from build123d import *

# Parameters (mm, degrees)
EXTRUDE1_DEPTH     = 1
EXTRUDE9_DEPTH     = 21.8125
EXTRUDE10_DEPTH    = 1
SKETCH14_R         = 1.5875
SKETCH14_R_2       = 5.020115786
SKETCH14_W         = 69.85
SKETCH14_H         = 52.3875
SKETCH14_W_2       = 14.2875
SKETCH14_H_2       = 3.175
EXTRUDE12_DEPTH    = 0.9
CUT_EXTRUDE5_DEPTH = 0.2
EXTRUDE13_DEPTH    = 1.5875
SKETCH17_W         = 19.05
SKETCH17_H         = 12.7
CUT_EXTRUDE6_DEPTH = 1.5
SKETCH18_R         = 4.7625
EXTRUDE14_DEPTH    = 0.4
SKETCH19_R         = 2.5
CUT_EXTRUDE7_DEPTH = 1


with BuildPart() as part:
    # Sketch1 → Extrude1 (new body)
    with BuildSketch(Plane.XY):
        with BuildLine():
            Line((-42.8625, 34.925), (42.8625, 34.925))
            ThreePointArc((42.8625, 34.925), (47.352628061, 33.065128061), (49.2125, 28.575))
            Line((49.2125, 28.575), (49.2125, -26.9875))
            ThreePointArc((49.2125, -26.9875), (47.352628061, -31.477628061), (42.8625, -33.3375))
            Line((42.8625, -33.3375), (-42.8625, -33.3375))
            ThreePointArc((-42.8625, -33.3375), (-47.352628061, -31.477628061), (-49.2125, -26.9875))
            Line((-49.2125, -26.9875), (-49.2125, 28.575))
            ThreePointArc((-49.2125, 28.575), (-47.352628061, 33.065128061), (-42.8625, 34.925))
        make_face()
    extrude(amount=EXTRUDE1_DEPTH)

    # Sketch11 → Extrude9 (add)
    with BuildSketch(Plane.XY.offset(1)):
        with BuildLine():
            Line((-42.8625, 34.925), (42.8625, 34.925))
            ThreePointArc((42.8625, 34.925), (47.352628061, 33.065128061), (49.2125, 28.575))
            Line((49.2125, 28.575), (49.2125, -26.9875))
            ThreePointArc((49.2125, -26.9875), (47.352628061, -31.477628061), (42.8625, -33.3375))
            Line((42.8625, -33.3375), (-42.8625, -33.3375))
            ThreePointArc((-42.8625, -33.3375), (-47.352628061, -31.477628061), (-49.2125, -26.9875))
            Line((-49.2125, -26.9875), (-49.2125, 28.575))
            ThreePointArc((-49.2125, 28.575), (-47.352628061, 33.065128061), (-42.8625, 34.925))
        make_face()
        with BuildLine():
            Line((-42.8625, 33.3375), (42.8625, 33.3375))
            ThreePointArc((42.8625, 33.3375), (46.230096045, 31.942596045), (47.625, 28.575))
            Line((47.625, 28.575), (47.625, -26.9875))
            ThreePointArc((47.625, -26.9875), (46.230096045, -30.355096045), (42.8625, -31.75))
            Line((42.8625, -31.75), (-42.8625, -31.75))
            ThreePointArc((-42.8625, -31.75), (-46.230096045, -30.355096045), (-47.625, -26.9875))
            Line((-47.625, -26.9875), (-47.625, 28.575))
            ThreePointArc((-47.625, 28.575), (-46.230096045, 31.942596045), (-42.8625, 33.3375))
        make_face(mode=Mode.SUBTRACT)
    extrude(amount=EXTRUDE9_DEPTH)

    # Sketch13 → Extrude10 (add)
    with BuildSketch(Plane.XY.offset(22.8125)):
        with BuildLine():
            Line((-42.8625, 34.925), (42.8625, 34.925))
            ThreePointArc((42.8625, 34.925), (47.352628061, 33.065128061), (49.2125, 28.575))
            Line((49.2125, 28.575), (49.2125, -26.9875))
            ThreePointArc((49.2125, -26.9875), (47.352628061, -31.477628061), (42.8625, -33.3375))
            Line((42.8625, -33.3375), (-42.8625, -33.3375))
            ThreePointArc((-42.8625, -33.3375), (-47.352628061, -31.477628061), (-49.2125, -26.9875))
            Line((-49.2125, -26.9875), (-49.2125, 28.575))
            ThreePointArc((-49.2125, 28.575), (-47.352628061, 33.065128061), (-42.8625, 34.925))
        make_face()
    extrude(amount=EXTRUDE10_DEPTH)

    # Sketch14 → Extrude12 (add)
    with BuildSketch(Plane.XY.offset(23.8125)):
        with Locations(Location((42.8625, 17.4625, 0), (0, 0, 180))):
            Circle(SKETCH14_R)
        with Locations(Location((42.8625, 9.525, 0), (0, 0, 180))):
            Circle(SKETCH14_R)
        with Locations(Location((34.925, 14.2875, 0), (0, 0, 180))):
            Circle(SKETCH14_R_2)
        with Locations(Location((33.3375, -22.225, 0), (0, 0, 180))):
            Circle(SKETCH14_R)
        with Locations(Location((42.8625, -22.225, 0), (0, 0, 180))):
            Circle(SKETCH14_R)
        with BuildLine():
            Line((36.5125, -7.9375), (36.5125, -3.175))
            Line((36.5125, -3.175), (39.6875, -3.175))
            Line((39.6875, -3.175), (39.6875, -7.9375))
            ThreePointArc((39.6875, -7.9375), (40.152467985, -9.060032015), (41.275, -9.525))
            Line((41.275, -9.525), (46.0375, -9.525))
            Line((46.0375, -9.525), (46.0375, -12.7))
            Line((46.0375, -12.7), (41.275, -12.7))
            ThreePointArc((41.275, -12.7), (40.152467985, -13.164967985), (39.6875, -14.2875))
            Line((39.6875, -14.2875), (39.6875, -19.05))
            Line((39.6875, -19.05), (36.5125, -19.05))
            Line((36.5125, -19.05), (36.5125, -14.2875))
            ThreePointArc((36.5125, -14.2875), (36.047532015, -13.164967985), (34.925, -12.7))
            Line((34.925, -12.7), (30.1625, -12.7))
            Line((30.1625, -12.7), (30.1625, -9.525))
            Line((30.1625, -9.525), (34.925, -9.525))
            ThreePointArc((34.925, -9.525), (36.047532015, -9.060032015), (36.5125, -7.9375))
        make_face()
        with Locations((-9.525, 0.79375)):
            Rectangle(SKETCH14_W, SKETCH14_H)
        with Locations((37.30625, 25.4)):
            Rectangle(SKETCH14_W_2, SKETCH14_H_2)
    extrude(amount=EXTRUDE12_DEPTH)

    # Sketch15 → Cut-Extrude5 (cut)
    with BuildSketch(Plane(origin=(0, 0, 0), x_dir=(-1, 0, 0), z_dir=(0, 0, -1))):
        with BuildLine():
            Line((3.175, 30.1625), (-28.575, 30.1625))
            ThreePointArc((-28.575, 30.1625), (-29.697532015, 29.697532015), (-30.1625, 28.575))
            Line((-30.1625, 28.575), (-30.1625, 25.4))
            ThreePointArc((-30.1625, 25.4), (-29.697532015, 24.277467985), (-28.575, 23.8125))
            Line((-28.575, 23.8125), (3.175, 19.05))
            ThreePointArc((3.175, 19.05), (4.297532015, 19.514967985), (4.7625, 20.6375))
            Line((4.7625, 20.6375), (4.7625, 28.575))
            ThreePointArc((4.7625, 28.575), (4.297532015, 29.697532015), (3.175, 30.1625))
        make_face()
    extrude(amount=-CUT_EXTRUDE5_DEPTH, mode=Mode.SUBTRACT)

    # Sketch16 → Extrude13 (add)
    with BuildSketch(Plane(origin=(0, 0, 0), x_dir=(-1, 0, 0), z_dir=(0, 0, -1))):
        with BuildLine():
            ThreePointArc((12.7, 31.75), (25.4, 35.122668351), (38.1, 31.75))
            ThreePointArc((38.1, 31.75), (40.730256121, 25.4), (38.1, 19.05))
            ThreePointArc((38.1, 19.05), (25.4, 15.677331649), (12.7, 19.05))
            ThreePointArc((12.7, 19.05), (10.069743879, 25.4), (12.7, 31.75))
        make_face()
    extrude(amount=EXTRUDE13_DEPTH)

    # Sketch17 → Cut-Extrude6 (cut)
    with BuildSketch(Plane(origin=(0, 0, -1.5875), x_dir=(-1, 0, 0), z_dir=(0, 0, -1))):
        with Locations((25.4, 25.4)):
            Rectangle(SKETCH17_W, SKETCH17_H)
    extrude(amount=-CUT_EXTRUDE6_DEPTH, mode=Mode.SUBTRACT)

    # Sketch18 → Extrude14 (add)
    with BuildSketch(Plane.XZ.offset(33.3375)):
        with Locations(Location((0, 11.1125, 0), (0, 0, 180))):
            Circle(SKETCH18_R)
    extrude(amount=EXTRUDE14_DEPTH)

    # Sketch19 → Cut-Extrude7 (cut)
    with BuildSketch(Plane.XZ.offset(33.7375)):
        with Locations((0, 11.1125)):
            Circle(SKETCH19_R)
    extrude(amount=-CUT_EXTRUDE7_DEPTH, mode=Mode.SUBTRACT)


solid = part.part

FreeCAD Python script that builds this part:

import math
import FreeCAD as App
import Part
import Sketcher
from FreeCAD import Vector
Q = App.Units.Quantity


def add_polygon(sketch, points):
    """Adds a closed chain of lines whose ends are joined by coincident constraints."""
    first, n = sketch.GeometryCount, len(points)
    for a, b in zip(points, points[1:] + points[:1]):
        sketch.addGeometry(Part.LineSegment(App.Vector(*a, 0), App.Vector(*b, 0)), False)
    for i in range(n):
        sketch.addConstraint(Sketcher.Constraint("Coincident", first + i, 2, first + (i + 1) % n, 1))

doc = App.newDocument("Part")
params = doc.addObject("Spreadsheet::Sheet", "Params")
for row, (alias, value) in enumerate([
    ("sketch1_radius", "0.25 in"),
    ("sketch1_width", "3.375 in"),
    ("sketch1_height", "2.1875 in"),
    ("pad1_length", "1 mm"),
    ("sketch2_radius", "0.25 in"),
    ("sketch2_radius2", "0.1875 in"),
    ("sketch2_width", "3.375 in"),
    ("sketch2_height", "2.1875 in"),
    ("pad2_length", "21.8125 mm"),
    ("sketch3_radius", "0.25 in"),
    ("sketch3_width", "3.375 in"),
    ("sketch3_height", "2.1875 in"),
    ("pad3_length", "1 mm"),
    ("sketch4_diameter", "0.125 in"),
    ("sketch4_width", "2.75 in"),
    ("sketch4_width2", "0.1875 in"),
    ("sketch4_width3", "0.125 in"),
    ("sketch4_width4", "0.5625 in"),
    ("pad4_length", "0.9 mm"),
    ("sketch5_radius", "0.0625 in"),
    ("sketch5_width", "1.25 in"),
    ("sketch5_height", "0.125 in"),
    ("sketch5_height2", "0.3125 in"),
    ("pocket1_length", "0.2 mm"),
    ("pad5_length", "0.0625 in"),
    ("sketch7_height", "0.5 in"),
    ("sketch7_width", "0.75 in"),
    ("pocket2_length", "1.5 mm"),
    ("sketch8_diameter", "0.375 in"),
    ("pad6_length", "0.4 mm"),
    ("pocket3_length", "1 mm"),
], start=1):
    params.set(f"A{row}", alias)
    params.set(f"B{row}", "=" + value)
    params.setAlias(f"B{row}", alias)

body = doc.addObject("PartDesign::Body", "Body")

# Sketch on XY plane
sketch1 = doc.addObject("Sketcher::SketchObject", "Sketch")
body.addObject(sketch1)
sketch1.AttachmentSupport = (doc.XY_Plane, [""])
sketch1.MapMode = "FlatFace"
sketch1.addGeometry([
    Part.LineSegment(Vector(43, 35, 0), Vector(-43, 35, 0)),  # 0
    Part.ArcOfCircle(Part.Circle(Vector(-43, 29, 0), Vector(0, 0, 1), 6), math.radians(90), math.radians(180)),  # 1
    Part.LineSegment(Vector(-49, 29, 0), Vector(-49, -27, 0)),  # 2
    Part.ArcOfCircle(Part.Circle(Vector(-43, -27, 0), Vector(0, 0, 1), 6), math.radians(180), math.radians(270)),  # 3
    Part.LineSegment(Vector(-43, -33, 0), Vector(43, -33, 0)),  # 4
    Part.ArcOfCircle(Part.Circle(Vector(43, -27, 0), Vector(0, 0, 1), 6), math.radians(-90), math.radians(0)),  # 5
    Part.LineSegment(Vector(49, -27, 0), Vector(49, 29, 0)),  # 6
    Part.ArcOfCircle(Part.Circle(Vector(43, 29, 0), Vector(0, 0, 1), 6), math.radians(0), math.radians(90)),  # 7
], False)
sketch1.addConstraint([
    Sketcher.Constraint("Tangent", 0, 2, 1, 1),
    Sketcher.Constraint("Tangent", 1, 2, 2, 1),
    Sketcher.Constraint("Tangent", 2, 2, 3, 1),
    Sketcher.Constraint("Tangent", 3, 2, 4, 1),
    Sketcher.Constraint("Tangent", 4, 2, 5, 1),
    Sketcher.Constraint("Tangent", 5, 2, 6, 1),
    Sketcher.Constraint("Tangent", 6, 2, 7, 1),
    Sketcher.Constraint("Tangent", 7, 2, 0, 1),
    Sketcher.Constraint("Horizontal", 0),
    Sketcher.Constraint("Vertical", 2),
    Sketcher.Constraint("Horizontal", 4),
    Sketcher.Constraint("Vertical", 6),
    Sketcher.Constraint("Equal", 1, 3),
    Sketcher.Constraint("Equal", 3, 5),
    Sketcher.Constraint("Equal", 5, 7),
    Sketcher.Constraint("Radius", 1, Q("0.25 in")),
    Sketcher.Constraint("DistanceX", 0, 2, 0, 1, Q("3.375 in")),
    Sketcher.Constraint("DistanceY", 2, 2, 2, 1, Q("2.1875 in")),
    Sketcher.Constraint("DistanceX", 1, 3, -1, 1, Q("1.6875 in")),
    Sketcher.Constraint("DistanceY", -1, 1, 1, 3, Q("1.125 in")),
])
sketch1.setExpression("Constraints[15]", "Params.sketch1_radius")
sketch1.setExpression("Constraints[16]", "Params.sketch1_width")
sketch1.setExpression("Constraints[17]", "Params.sketch1_height")
pad1 = doc.addObject("PartDesign::Pad", "Pad")
body.addObject(pad1)
pad1.Profile = sketch1
pad1.setExpression("Length", "Params.pad1_length")

# Sketch on XY plane
sketch2 = doc.addObject("Sketcher::SketchObject", "Sketch001")
body.addObject(sketch2)
sketch2.AttachmentSupport = (doc.XY_Plane, [""])
sketch2.MapMode = "FlatFace"
sketch2.AttachmentOffset = App.Placement(Vector(0, 0, 1), App.Rotation())
sketch2.addGeometry([
    Part.LineSegment(Vector(42.9, 34.9, 0), Vector(-42.9, 34.9, 0)),  # 0
    Part.ArcOfCircle(Part.Circle(Vector(-42.9, 28.6, 0), Vector(0, 0, 1), 6.3), math.radians(90), math.radians(180)),  # 1
    Part.LineSegment(Vector(-49.2, 28.6, 0), Vector(-49.2, -27, 0)),  # 2
    Part.ArcOfCircle(Part.Circle(Vector(-42.9, -27, 0), Vector(0, 0, 1), 6.3), math.radians(180), math.radians(270)),  # 3
    Part.LineSegment(Vector(-42.9, -33.3, 0), Vector(42.9, -33.3, 0)),  # 4
    Part.ArcOfCircle(Part.Circle(Vector(42.9, -27, 0), Vector(0, 0, 1), 6.3), math.radians(-90), math.radians(0)),  # 5
    Part.LineSegment(Vector(49.2, -27, 0), Vector(49.2, 28.6, 0)),  # 6
    Part.ArcOfCircle(Part.Circle(Vector(42.9, 28.6, 0), Vector(0, 0, 1), 6.3), math.radians(0), math.radians(90)),  # 7
    Part.LineSegment(Vector(-42.9, 33.3, 0), Vector(42.9, 33.3, 0)),  # 8
    Part.ArcOfCircle(Part.Circle(Vector(42.9, 28.6, 0), Vector(0, 0, 1), 4.8), math.radians(0), math.radians(90)),  # 9
    Part.LineSegment(Vector(47.6, 28.6, 0), Vector(47.6, -27, 0)),  # 10
    Part.ArcOfCircle(Part.Circle(Vector(42.9, -27, 0), Vector(0, 0, 1), 4.8), math.radians(-90), math.radians(0)),  # 11
    Part.LineSegment(Vector(42.9, -31.8, 0), Vector(-42.9, -31.8, 0)),  # 12
    Part.ArcOfCircle(Part.Circle(Vector(-42.9, -27, 0), Vector(0, 0, 1), 4.8), math.radians(-180), math.radians(-90)),  # 13
    Part.LineSegment(Vector(-47.6, -27, 0), Vector(-47.6, 28.6, 0)),  # 14
    Part.ArcOfCircle(Part.Circle(Vector(-42.9, 28.6, 0), Vector(0, 0, 1), 4.8), math.radians(90), math.radians(180)),  # 15
], False)
sketch2.addConstraint([
    Sketcher.Constraint("Tangent", 0, 2, 1, 1),
    Sketcher.Constraint("Tangent", 1, 2, 2, 1),
    Sketcher.Constraint("Tangent", 2, 2, 3, 1),
    Sketcher.Constraint("Tangent", 3, 2, 4, 1),
    Sketcher.Constraint("Tangent", 4, 2, 5, 1),
    Sketcher.Constraint("Tangent", 5, 2, 6, 1),
    Sketcher.Constraint("Tangent", 6, 2, 7, 1),
    Sketcher.Constraint("Tangent", 7, 2, 0, 1),
    Sketcher.Constraint("Tangent", 8, 2, 9, 2),
    Sketcher.Constraint("Tangent", 9, 1, 10, 1),
    Sketcher.Constraint("Tangent", 10, 2, 11, 2),
    Sketcher.Constraint("Tangent", 11, 1, 12, 1),
    Sketcher.Constraint("Tangent", 12, 2, 13, 2),
    Sketcher.Constraint("Tangent", 13, 1, 14, 1),
    Sketcher.Constraint("Tangent", 14, 2, 15, 2),
    Sketcher.Constraint("Tangent", 15, 1, 8, 1),
    Sketcher.Constraint("Horizontal", 0),
    Sketcher.Constraint("Vertical", 2),
    Sketcher.Constraint("Horizontal", 4),
    Sketcher.Constraint("Vertical", 6),
    Sketcher.Constraint("Horizontal", 8),
    Sketcher.Constraint("Vertical", 10),
    Sketcher.Constraint("Horizontal", 12),
    Sketcher.Constraint("Vertical", 14),
    Sketcher.Constraint("Coincident", 9, 3, 7, 3),
    Sketcher.Constraint("Coincident", 11, 3, 5, 3),
    Sketcher.Constraint("Coincident", 13, 3, 3, 3),
    Sketcher.Constraint("Equal", 1, 3),
    Sketcher.Constraint("Equal", 3, 5),
    Sketcher.Constraint("Equal", 5, 7),
    Sketcher.Constraint("Equal", 13, 15),
    Sketcher.Constraint("Symmetric", 3, 2, 8, 2, -1, 1),
    Sketcher.Constraint("Radius", 1, Q("0.25 in")),
    Sketcher.Constraint("Radius", 9, Q("0.1875 in")),
    Sketcher.Constraint("DistanceX", 0, 2, 0, 1, Q("3.375 in")),
    Sketcher.Constraint("DistanceY", 2, 2, 2, 1, Q("2.1875 in")),
])
sketch2.setExpression("Constraints[32]", "Params.sketch2_radius")
sketch2.setExpression("Constraints[33]", "Params.sketch2_radius2")
sketch2.setExpression("Constraints[34]", "Params.sketch2_width")
sketch2.setExpression("Constraints[35]", "Params.sketch2_height")
pad2 = doc.addObject("PartDesign::Pad", "Pad001")
body.addObject(pad2)
pad2.Profile = sketch2
pad2.setExpression("Length", "Params.pad2_length")

# Sketch on XY plane
sketch3 = doc.addObject("Sketcher::SketchObject", "Sketch002")
body.addObject(sketch3)
sketch3.AttachmentSupport = (doc.XY_Plane, [""])
sketch3.MapMode = "FlatFace"
sketch3.AttachmentOffset = App.Placement(Vector(0, 0, 22.8125), App.Rotation())
sketch3.addGeometry([
    Part.LineSegment(Vector(43, 35, 0), Vector(-43, 35, 0)),  # 0
    Part.ArcOfCircle(Part.Circle(Vector(-43, 29, 0), Vector(0, 0, 1), 6), math.radians(90), math.radians(180)),  # 1
    Part.LineSegment(Vector(-49, 29, 0), Vector(-49, -27, 0)),  # 2
    Part.ArcOfCircle(Part.Circle(Vector(-43, -27, 0), Vector(0, 0, 1), 6), math.radians(180), math.radians(270)),  # 3
    Part.LineSegment(Vector(-43, -33, 0), Vector(43, -33, 0)),  # 4
    Part.ArcOfCircle(Part.Circle(Vector(43, -27, 0), Vector(0, 0, 1), 6), math.radians(-90), math.radians(0)),  # 5
    Part.LineSegment(Vector(49, -27, 0), Vector(49, 29, 0)),  # 6
    Part.ArcOfCircle(Part.Circle(Vector(43, 29, 0), Vector(0, 0, 1), 6), math.radians(0), math.radians(90)),  # 7
], False)
sketch3.addConstraint([
    Sketcher.Constraint("Tangent", 0, 2, 1, 1),
    Sketcher.Constraint("Tangent", 1, 2, 2, 1),
    Sketcher.Constraint("Tangent", 2, 2, 3, 1),
    Sketcher.Constraint("Tangent", 3, 2, 4, 1),
    Sketcher.Constraint("Tangent", 4, 2, 5, 1),
    Sketcher.Constraint("Tangent", 5, 2, 6, 1),
    Sketcher.Constraint("Tangent", 6, 2, 7, 1),
    Sketcher.Constraint("Tangent", 7, 2, 0, 1),
    Sketcher.Constraint("Horizontal", 0),
    Sketcher.Constraint("Vertical", 2),
    Sketcher.Constraint("Horizontal", 4),
    Sketcher.Constraint("Vertical", 6),
    Sketcher.Constraint("Equal", 1, 3),
    Sketcher.Constraint("Equal", 3, 5),
    Sketcher.Constraint("Equal", 5, 7),
    Sketcher.Constraint("Radius", 1, Q("0.25 in")),
    Sketcher.Constraint("DistanceX", 0, 2, 0, 1, Q("3.375 in")),
    Sketcher.Constraint("DistanceY", 2, 2, 2, 1, Q("2.1875 in")),
    Sketcher.Constraint("DistanceX", 1, 3, -1, 1, Q("1.6875 in")),
    Sketcher.Constraint("DistanceY", -1, 1, 1, 3, Q("1.125 in")),
])
sketch3.setExpression("Constraints[15]", "Params.sketch3_radius")
sketch3.setExpression("Constraints[16]", "Params.sketch3_width")
sketch3.setExpression("Constraints[17]", "Params.sketch3_height")
pad3 = doc.addObject("PartDesign::Pad", "Pad002")
body.addObject(pad3)
pad3.Profile = sketch3
pad3.setExpression("Length", "Params.pad3_length")

# Sketch on XY plane
sketch4 = doc.addObject("Sketcher::SketchObject", "Sketch003")
body.addObject(sketch4)
sketch4.AttachmentSupport = (doc.XY_Plane, [""])
sketch4.MapMode = "FlatFace"
sketch4.AttachmentOffset = App.Placement(Vector(0, 0, 0.9375 * 25.4), App.Rotation())
sketch4.addGeometry(Part.Circle(Vector(42.9, 17.5, 0), Vector(0, 0, 1), 1.6), False)  # 0
sketch4.addGeometry(Part.Circle(Vector(42.9, 9.5, 0), Vector(0, 0, 1), 1.6), False)  # 1
sketch4.addGeometry(Part.Circle(Vector(34.9, 14.3, 0), Vector(0, 0, 1), 5), False)  # 2
sketch4.addGeometry(Part.Circle(Vector(33.3, -22.2, 0), Vector(0, 0, 1), 1.6), False)  # 3
sketch4.addGeometry(Part.Circle(Vector(42.9, -22.2, 0), Vector(0, 0, 1), 1.6), False)  # 4
sketch4.addGeometry(Part.LineSegment(Vector(36.5, -3.2, 0), Vector(36.5, -7.9, 0)), False)  # 5
sketch4.addGeometry(Part.ArcOfCircle(Part.Circle(Vector(34.9, -7.9, 0), Vector(0, 0, 1), 1.6), math.radians(-90), math.radians(0)), False)  # 6
sketch4.addGeometry(Part.LineSegment(Vector(34.9, -9.5, 0), Vector(30.2, -9.5, 0)), False)  # 7
sketch4.addGeometry(Part.LineSegment(Vector(30.2, -9.5, 0), Vector(30.2, -12.7, 0)), False)  # 8
sketch4.addGeometry(Part.LineSegment(Vector(30.2, -12.7, 0), Vector(34.9, -12.7, 0)), False)  # 9
sketch4.addGeometry(Part.ArcOfCircle(Part.Circle(Vector(34.9, -14.3, 0), Vector(0, 0, 1), 1.6), math.radians(0), math.radians(90)), False)  # 10
sketch4.addGeometry(Part.LineSegment(Vector(36.5, -14.3, 0), Vector(36.5, -19.1, 0)), False)  # 11
sketch4.addGeometry(Part.LineSegment(Vector(36.5, -19.1, 0), Vector(39.7, -19.1, 0)), False)  # 12
sketch4.addGeometry(Part.LineSegment(Vector(39.7, -19.1, 0), Vector(39.7, -14.3, 0)), False)  # 13
sketch4.addGeometry(Part.ArcOfCircle(Part.Circle(Vector(41.3, -14.3, 0), Vector(0, 0, 1), 1.6), math.radians(90), math.radians(180)), False)  # 14
sketch4.addGeometry(Part.LineSegment(Vector(41.3, -12.7, 0), Vector(46, -12.7, 0)), False)  # 15
sketch4.addGeometry(Part.LineSegment(Vector(46, -12.7, 0), Vector(46, -9.5, 0)), False)  # 16
sketch4.addGeometry(Part.LineSegment(Vector(46, -9.5, 0), Vector(41.3, -9.5, 0)), False)  # 17
sketch4.addGeometry(Part.ArcOfCircle(Part.Circle(Vector(41.3, -7.9, 0), Vector(0, 0, 1), 1.6), math.radians(180), math.radians(270)), False)  # 18
sketch4.addGeometry(Part.LineSegment(Vector(39.7, -7.9, 0), Vector(39.7, -3.2, 0)), False)  # 19
sketch4.addGeometry(Part.LineSegment(Vector(39.7, -3.2, 0), Vector(36.5, -3.2, 0)), False)  # 20
add_polygon(sketch4, [(-44.5, 27), (-44.5, -25.4), (25.4, -25.4), (25.4, 27)])  # lines 21-24
add_polygon(sketch4, [(30.2, 27), (30.2, 23.8), (44.5, 23.8), (44.5, 27)])  # lines 25-28
sketch4.addConstraint([
    Sketcher.Constraint("Tangent", 5, 2, 6, 2),
    Sketcher.Constraint("Tangent", 6, 1, 7, 1),
    Sketcher.Constraint("Coincident", 7, 2, 8, 1),
    Sketcher.Constraint("Coincident", 8, 2, 9, 1),
    Sketcher.Constraint("Tangent", 9, 2, 10, 2),
    Sketcher.Constraint("Tangent", 10, 1, 11, 1),
    Sketcher.Constraint("Coincident", 11, 2, 12, 1),
    Sketcher.Constraint("Coincident", 12, 2, 13, 1),
    Sketcher.Constraint("Tangent", 13, 2, 14, 2),
    Sketcher.Constraint("Tangent", 14, 1, 15, 1),
    Sketcher.Constraint("Coincident", 15, 2, 16, 1),
    Sketcher.Constraint("Coincident", 16, 2, 17, 1),
    Sketcher.Constraint("Tangent", 17, 2, 18, 2),
    Sketcher.Constraint("Tangent", 18, 1, 19, 1),
    Sketcher.Constraint("Coincident", 19, 2, 20, 1),
    Sketcher.Constraint("Coincident", 20, 2, 5, 1),
    Sketcher.Constraint("Vertical", 5),
    Sketcher.Constraint("Horizontal", 7),
    Sketcher.Constraint("Vertical", 8),
    Sketcher.Constraint("Horizontal", 9),
    Sketcher.Constraint("Vertical", 11),
    Sketcher.Constraint("Horizontal", 12),
    Sketcher.Constraint("Vertical", 13),
    Sketcher.Constraint("Horizontal", 15),
    Sketcher.Constraint("Vertical", 16),
    Sketcher.Constraint("Horizontal", 17),
    Sketcher.Constraint("Vertical", 19),
    Sketcher.Constraint("Horizontal", 20),
    Sketcher.Constraint("Vertical", 21),
    Sketcher.Constraint("Horizontal", 22),
    Sketcher.Constraint("Vertical", 23),
    Sketcher.Constraint("Horizontal", 24),
    Sketcher.Constraint("Vertical", 25),
    Sketcher.Constraint("Horizontal", 26),
    Sketcher.Constraint("Vertical", 27),
    Sketcher.Constraint("Horizontal", 28),
    Sketcher.Constraint("Equal", 0, 1),
    Sketcher.Constraint("Equal", 1, 3),
    Sketcher.Constraint("Equal", 3, 4),
    Sketcher.Constraint("Equal", 4, 6),
    Sketcher.Constraint("Equal", 6, 10),
    Sketcher.Constraint("Equal", 10, 14),
    Sketcher.Constraint("Equal", 14, 18),
    Sketcher.Constraint("Symmetric", 24, 2, 27, 2, -2),
    Sketcher.Constraint("Symmetric", 2, 3, 10, 3, -1),
    Sketcher.Constraint("Horizontal", 3, 3, 4, 3),
    Sketcher.Constraint("Horizontal", 10, 3, 14, 3),
    Sketcher.Constraint("Horizontal", 6, 3, 18, 3),
    Sketcher.Constraint("Vertical", 0, 3, 1, 3),
    Sketcher.Constraint("Vertical", 1, 3, 4, 3),
    Sketcher.Constraint("Vertical", 2, 3, 6, 3),
    Sketcher.Constraint("Vertical", 14, 3, 18, 3),
    Sketcher.Constraint("Vertical", 8, 2, 25, 2),
    Sketcher.Constraint("Equal", 9, 15),
    Sketcher.Constraint("Equal", 17, 5),
    Sketcher.Constraint("Equal", 20, 8),
    Sketcher.Constraint("Equal", 5, 11),
    Sketcher.Constraint("Equal", 16, 25),
    Sketcher.Constraint("Diameter", 0, Q("0.125 in")),
    Sketcher.Constraint("DistanceY", 21, 2, -1, 1, Q("1 in")),
    Sketcher.Constraint("DistanceX", -1, 1, 22, 2, Q("1 in")),
    Sketcher.Constraint("DistanceY", 6, 3, 0, 3, Q("1 in")),
    Sketcher.Constraint("DistanceX", 22, 1, 22, 2, Q("2.75 in")),
    Sketcher.Constraint("DistanceY", 8, 2, -1, 1, Q("0.5 in")),
    Sketcher.Constraint("DistanceY", 2, 3, 23, 2, Q("0.5 in")),
    Sketcher.Constraint("DistanceX", 25, 2, 0, 3, Q("0.5 in")),
    Sketcher.Constraint("DistanceX", 7, 2, 7, 1, Q("0.1875 in")),
    Sketcher.Constraint("DistanceX", 12, 1, 12, 2, Q("0.125 in")),
    Sketcher.Constraint("DistanceX", 26, 1, 26, 2, Q("0.5625 in")),
    Sketcher.Constraint("DistanceY", 3, 3, 1, 3, Q("1.25 in")),
    Sketcher.Constraint("Diameter", 2, Q("10.040232 mm")),
    Sketcher.Constraint("DistanceY", -1, 1, 1, 3, Q("0.375 in")),
    Sketcher.Constraint("DistanceX", -1, 1, 3, 3, Q("1.3125 in")),
])
sketch4.setExpression("Constraints[66]", "Params.sketch4_diameter")
sketch4.setExpression("Constraints[70]", "Params.sketch4_width")
sketch4.setExpression("Constraints[74]", "Params.sketch4_width2")
sketch4.setExpression("Constraints[75]", "Params.sketch4_width3")
sketch4.setExpression("Constraints[76]", "Params.sketch4_width4")
pad4 = doc.addObject("PartDesign::Pad", "Pad003")
body.addObject(pad4)
pad4.Profile = sketch4
pad4.setExpression("Length", "Params.pad4_length")

# Sketch on XY plane
sketch5 = doc.addObject("Sketcher::SketchObject", "Sketch004")
body.addObject(sketch5)
sketch5.AttachmentSupport = (doc.XY_Plane, [""])
sketch5.MapMode = "FlatFace"
sketch5.addGeometry([
    Part.LineSegment(Vector(-3.2, 30.2, 0), Vector(28.6, 30.2, 0)),  # 0
    Part.ArcOfCircle(Part.Circle(Vector(28.6, 28.6, 0), Vector(0, 0, 1), 1.6), math.radians(0), math.radians(90)),  # 1
    Part.LineSegment(Vector(30.2, 28.6, 0), Vector(30.2, 25.4, 0)),  # 2
    Part.ArcOfCircle(Part.Circle(Vector(28.6, 25.4, 0), Vector(0, 0, 1), 1.6), math.radians(-90), math.radians(0)),  # 3
    Part.LineSegment(Vector(28.6, 23.8, 0), Vector(-3.2, 19.1, 0)),  # 4
    Part.ArcOfCircle(Part.Circle(Vector(-3.2, 20.6, 0), Vector(0, 0, 1), 1.6), math.radians(180), math.radians(270)),  # 5
    Part.LineSegment(Vector(-4.8, 20.6, 0), Vector(-4.8, 28.6, 0)),  # 6
    Part.ArcOfCircle(Part.Circle(Vector(-3.2, 28.6, 0), Vector(0, 0, 1), 1.6), math.radians(90), math.radians(180)),  # 7
], False)
sketch5.addConstraint([
    Sketcher.Constraint("Tangent", 0, 2, 1, 2),
    Sketcher.Constraint("Tangent", 1, 1, 2, 1),
    Sketcher.Constraint("Tangent", 2, 2, 3, 2),
    Sketcher.Constraint("Coincident", 3, 1, 4, 1),
    Sketcher.Constraint("Coincident", 4, 2, 5, 2),
    Sketcher.Constraint("Tangent", 5, 1, 6, 1),
    Sketcher.Constraint("Tangent", 6, 2, 7, 2),
    Sketcher.Constraint("Tangent", 7, 1, 0, 1),
    Sketcher.Constraint("Horizontal", 0),
    Sketcher.Constraint("Vertical", 2),
    Sketcher.Constraint("Vertical", 6),
    Sketcher.Constraint("Equal", 1, 3),
    Sketcher.Constraint("Equal", 3, 5),
    Sketcher.Constraint("Equal", 5, 7),
    Sketcher.Constraint("Vertical", 0, 2, 3, 1),
    Sketcher.Constraint("Vertical", 7, 3, 4, 2),
    Sketcher.Constraint("DistanceY", -1, 1, 3, 3, Q("1 in")),
    Sketcher.Constraint("Radius", 1, Q("0.0625 in")),
    Sketcher.Constraint("DistanceX", 0, 1, 0, 2, Q("1.25 in")),
    Sketcher.Constraint("DistanceY", 2, 2, 2, 1, Q("0.125 in")),
    Sketcher.Constraint("DistanceY", 6, 1, 6, 2, Q("0.3125 in")),
    Sketcher.Constraint("DistanceX", -1, 1, 1, 3, Q("1.125 in")),
])
sketch5.setExpression("Constraints[17]", "Params.sketch5_radius")
sketch5.setExpression("Constraints[18]", "Params.sketch5_width")
sketch5.setExpression("Constraints[19]", "Params.sketch5_height")
sketch5.setExpression("Constraints[20]", "Params.sketch5_height2")
pocket1 = doc.addObject("PartDesign::Pocket", "Pocket")
body.addObject(pocket1)
pocket1.Profile = sketch5
pocket1.setExpression("Length", "Params.pocket1_length")
pocket1.Reversed = True

# Sketch on XY plane
sketch6 = doc.addObject("Sketcher::SketchObject", "Sketch005")
body.addObject(sketch6)
sketch6.AttachmentSupport = (doc.XY_Plane, [""])
sketch6.MapMode = "FlatFace"
sketch6.addGeometry([
    Part.ArcOfCircle(Part.Circle(Vector(-25, 10, 0), Vector(0, 0, 1), 26), math.radians(60), math.radians(120)),
    Part.ArcOfCircle(Part.Circle(Vector(-19, 25, 0), Vector(0, 0, 1), 9), math.radians(-45), math.radians(45)),
    Part.ArcOfCircle(Part.Circle(Vector(-25, 41, 0), Vector(0, 0, 1), 26), math.radians(-120), math.radians(-60)),
    Part.ArcOfCircle(Part.Circle(Vector(-32, 25, 0), Vector(0, 0, 1), 9), math.radians(135), math.radians(225)),
], False)
sketch6.addConstraint([
    Sketcher.Constraint("Coincident", 0, 1, 1, 2),
    Sketcher.Constraint("Coincident", 1, 1, 2, 2),
    Sketcher.Constraint("Coincident", 2, 1, 3, 2),
    Sketcher.Constraint("Coincident", 3, 1, 0, 2),
    Sketcher.Constraint("Equal", 0, 2),
    Sketcher.Constraint("Equal", 1, 3),
    Sketcher.Constraint("Horizontal", 1, 3, 3, 3),
    Sketcher.Constraint("Horizontal", 1, 1, 2, 1),
    Sketcher.Constraint("Horizontal", 0, 1, 3, 1),
    Sketcher.Constraint("Vertical", 0, 1, 1, 1),
    Sketcher.Constraint("DistanceX", 0, 3, -1, 1, Q("1 in")),
    Sketcher.Constraint("DistanceY", -1, 1, 1, 3, Q("1 in")),
    Sketcher.Constraint("DistanceX", 2, 1, 1, 1, Q("1 in")),
    Sketcher.Constraint("DistanceX", 3, 3, 1, 3, Q("0.5 in")),
    Sketcher.Constraint("DistanceY", 1, 1, 0, 1, Q("0.5 in")),
    Sketcher.Constraint("DistanceY", 0, 3, 2, 3, Q("1.25 in")),
])
pad5 = doc.addObject("PartDesign::Pad", "Pad004")
body.addObject(pad5)
pad5.Profile = sketch6
pad5.setExpression("Length", "Params.pad5_length")
pad5.Reversed = True

# Sketch on XY plane
sketch7 = doc.addObject("Sketcher::SketchObject", "Sketch006")
body.addObject(sketch7)
sketch7.AttachmentSupport = (doc.XY_Plane, [""])
sketch7.MapMode = "FlatFace"
sketch7.AttachmentOffset = App.Placement(Vector(0, 0, -0.0625 * 25.4), App.Rotation())
add_polygon(sketch7, [(-16, 32), (-16, 19), (-35, 19), (-35, 32)])  # lines 0-3
sketch7.addConstraint([
    Sketcher.Constraint("Vertical", 0),
    Sketcher.Constraint("Horizontal", 1),
    Sketcher.Constraint("Vertical", 2),
    Sketcher.Constraint("Horizontal", 3),
    Sketcher.Constraint("DistanceY", 0, 2, 0, 1, Q("0.5 in")),
    Sketcher.Constraint("DistanceX", 1, 2, 1, 1, Q("0.75 in")),
    Sketcher.Constraint("DistanceY", -1, 1, 0, 2, Q("0.75 in")),
    Sketcher.Constraint("DistanceX", 0, 2, -1, 1, Q("0.625 in")),
])
sketch7.setExpression("Constraints[8]", "Params.sketch7_height")
sketch7.setExpression("Constraints[9]", "Params.sketch7_width")
pocket2 = doc.addObject("PartDesign::Pocket", "Pocket001")
body.addObject(pocket2)
pocket2.Profile = sketch7
pocket2.setExpression("Length", "Params.pocket2_length")
pocket2.Reversed = True

# Sketch on XZ plane
sketch8 = doc.addObject("Sketcher::SketchObject", "Sketch007")
body.addObject(sketch8)
sketch8.AttachmentSupport = (doc.XZ_Plane, [""])
sketch8.MapMode = "FlatFace"
sketch8.AttachmentOffset = App.Placement(Vector(0, 0, 1.3125 * 25.4), App.Rotation())
sketch8.addGeometry(Part.Circle(Vector(0, 11.1, 0), Vector(0, 0, 1), 4.8), False)
sketch8.addConstraint([
    Sketcher.Constraint("PointOnObject", 0, 3, -2),
    Sketcher.Constraint("Diameter", 0, Q("0.375 in")),
    Sketcher.Constraint("DistanceY", -1, 1, 0, 3, Q("0.4375 in")),
])
sketch8.setExpression("Constraints[1]", "Params.sketch8_diameter")
pad6 = doc.addObject("PartDesign::Pad", "Pad005")
body.addObject(pad6)
pad6.Profile = sketch8
pad6.setExpression("Length", "Params.pad6_length")

# Sketch on XZ plane
sketch9 = doc.addObject("Sketcher::SketchObject", "Sketch008")
body.addObject(sketch9)
sketch9.AttachmentSupport = (doc.XZ_Plane, [""])
sketch9.MapMode = "FlatFace"
sketch9.AttachmentOffset = App.Placement(Vector(0, 0, 33.7375), App.Rotation())
sketch9.addGeometry(Part.Circle(Vector(0, 11.1, 0), Vector(0, 0, 1), 2.5), False)
sketch9.addConstraint([
    Sketcher.Constraint("PointOnObject", 0, 3, -2),
    Sketcher.Constraint("Diameter", 0, Q("5 mm")),
    Sketcher.Constraint("DistanceY", -1, 1, 0, 3, Q("0.4375 in")),
])
pocket3 = doc.addObject("PartDesign::Pocket", "Pocket002")
body.addObject(pocket3)
pocket3.Profile = sketch9
pocket3.setExpression("Length", "Params.pocket3_length")

doc.recompute()
